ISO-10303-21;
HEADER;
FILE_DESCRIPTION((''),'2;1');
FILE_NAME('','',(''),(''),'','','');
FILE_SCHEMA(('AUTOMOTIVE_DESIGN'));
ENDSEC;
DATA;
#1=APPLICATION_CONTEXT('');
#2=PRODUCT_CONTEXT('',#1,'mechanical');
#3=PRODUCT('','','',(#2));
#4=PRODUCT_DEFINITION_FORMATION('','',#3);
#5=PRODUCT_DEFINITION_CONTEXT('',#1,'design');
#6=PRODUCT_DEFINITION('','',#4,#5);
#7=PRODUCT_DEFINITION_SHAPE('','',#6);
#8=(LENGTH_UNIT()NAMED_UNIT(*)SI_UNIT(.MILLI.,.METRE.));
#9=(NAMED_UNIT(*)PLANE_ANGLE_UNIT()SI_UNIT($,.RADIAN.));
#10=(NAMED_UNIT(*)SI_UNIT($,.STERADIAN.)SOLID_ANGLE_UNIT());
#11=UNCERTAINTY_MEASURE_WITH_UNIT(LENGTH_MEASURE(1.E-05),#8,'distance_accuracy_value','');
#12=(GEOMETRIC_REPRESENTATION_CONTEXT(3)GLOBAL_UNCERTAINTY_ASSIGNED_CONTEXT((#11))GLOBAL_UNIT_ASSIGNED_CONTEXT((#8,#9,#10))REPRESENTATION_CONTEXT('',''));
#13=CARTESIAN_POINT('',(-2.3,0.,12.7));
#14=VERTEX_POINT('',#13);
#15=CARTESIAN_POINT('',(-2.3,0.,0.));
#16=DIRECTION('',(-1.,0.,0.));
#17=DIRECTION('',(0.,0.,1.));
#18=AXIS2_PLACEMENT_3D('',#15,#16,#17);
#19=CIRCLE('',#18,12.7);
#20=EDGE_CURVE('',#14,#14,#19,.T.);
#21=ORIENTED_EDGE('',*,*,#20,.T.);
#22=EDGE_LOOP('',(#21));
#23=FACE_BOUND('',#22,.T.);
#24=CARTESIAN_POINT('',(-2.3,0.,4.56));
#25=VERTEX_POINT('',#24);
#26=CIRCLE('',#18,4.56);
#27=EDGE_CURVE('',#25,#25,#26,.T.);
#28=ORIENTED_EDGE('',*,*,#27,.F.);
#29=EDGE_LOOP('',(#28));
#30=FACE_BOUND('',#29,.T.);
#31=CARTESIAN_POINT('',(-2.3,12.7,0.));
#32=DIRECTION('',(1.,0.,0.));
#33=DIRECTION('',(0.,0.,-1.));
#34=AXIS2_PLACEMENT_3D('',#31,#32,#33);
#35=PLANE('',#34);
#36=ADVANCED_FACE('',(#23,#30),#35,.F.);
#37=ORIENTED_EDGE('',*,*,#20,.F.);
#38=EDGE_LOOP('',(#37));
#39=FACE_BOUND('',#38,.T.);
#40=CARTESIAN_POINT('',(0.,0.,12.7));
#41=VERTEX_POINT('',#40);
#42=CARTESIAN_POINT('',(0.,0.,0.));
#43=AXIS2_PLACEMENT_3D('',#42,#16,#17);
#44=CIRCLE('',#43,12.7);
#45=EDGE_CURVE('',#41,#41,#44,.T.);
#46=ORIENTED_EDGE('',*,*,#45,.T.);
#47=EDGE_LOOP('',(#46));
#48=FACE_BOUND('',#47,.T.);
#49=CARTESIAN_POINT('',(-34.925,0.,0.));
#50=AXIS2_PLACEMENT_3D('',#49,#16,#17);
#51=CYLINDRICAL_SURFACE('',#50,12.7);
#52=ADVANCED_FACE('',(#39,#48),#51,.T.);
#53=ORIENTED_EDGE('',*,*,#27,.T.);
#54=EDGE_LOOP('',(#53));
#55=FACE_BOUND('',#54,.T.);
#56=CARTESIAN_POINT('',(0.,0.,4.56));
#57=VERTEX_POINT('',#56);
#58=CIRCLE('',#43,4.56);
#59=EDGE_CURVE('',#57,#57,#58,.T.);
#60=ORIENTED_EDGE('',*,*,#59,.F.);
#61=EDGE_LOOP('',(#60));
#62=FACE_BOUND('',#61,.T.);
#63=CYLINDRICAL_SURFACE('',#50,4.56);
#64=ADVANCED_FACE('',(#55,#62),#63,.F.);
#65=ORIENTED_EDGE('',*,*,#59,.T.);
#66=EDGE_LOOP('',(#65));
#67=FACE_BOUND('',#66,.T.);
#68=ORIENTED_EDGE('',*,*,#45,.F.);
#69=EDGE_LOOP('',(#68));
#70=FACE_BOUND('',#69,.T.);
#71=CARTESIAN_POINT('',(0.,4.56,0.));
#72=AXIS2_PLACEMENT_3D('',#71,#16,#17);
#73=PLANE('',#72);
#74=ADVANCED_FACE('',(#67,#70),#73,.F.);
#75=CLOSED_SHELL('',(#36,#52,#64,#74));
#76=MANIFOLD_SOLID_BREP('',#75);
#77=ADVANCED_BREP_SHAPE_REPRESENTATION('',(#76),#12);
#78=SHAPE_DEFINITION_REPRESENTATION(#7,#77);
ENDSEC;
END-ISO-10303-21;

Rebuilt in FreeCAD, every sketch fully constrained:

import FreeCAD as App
import Part
import Sketcher

V = App.Vector


def add_polygon(sketch, points):
    """Adds a closed chain of lines whose ends are joined by coincident constraints."""
    first, n = sketch.GeometryCount, len(points)
    for a, b in zip(points, points[1:] + points[:1]):
        sketch.addGeometry(Part.LineSegment(App.Vector(*a, 0), App.Vector(*b, 0)), False)
    for i in range(n):
        sketch.addConstraint(Sketcher.Constraint("Coincident", first + i, 2, first + (i + 1) % n, 1))

doc = App.newDocument("Part")
body = doc.addObject("PartDesign::Body", "Body")

sketch1 = body.newObject("Sketcher::SketchObject", "Sketch")
sketch1.AttachmentSupport = (doc.getObject("XY_Plane"), [""])
sketch1.MapMode = "FlatFace"
add_polygon(sketch1, [(-2.3, 12.7), (-2.3, 4.56), (0, 4.56), (0, 12.7)])
sketch1.addConstraint([
    Sketcher.Constraint("Vertical", 0),
    Sketcher.Constraint("Horizontal", 1),
    Sketcher.Constraint("Vertical", 2),
    Sketcher.Constraint("Horizontal", 3),
    Sketcher.Constraint("PointOnObject", 1, 2, -2),
    Sketcher.Constraint("DistanceX", 1, 1, 1, 2, 2.3),
    Sketcher.Constraint("DistanceY", 0, 2, 0, 1, 8.14),
    Sketcher.Constraint("DistanceY", -1, 1, 2, 2, 12.7),
])
revolution = body.newObject("PartDesign::Revolution", "Revolution")
revolution.Profile = sketch1
revolution.ReferenceAxis = (sketch1, ["H_Axis"])
revolution.Angle = 360

doc.recompute()
